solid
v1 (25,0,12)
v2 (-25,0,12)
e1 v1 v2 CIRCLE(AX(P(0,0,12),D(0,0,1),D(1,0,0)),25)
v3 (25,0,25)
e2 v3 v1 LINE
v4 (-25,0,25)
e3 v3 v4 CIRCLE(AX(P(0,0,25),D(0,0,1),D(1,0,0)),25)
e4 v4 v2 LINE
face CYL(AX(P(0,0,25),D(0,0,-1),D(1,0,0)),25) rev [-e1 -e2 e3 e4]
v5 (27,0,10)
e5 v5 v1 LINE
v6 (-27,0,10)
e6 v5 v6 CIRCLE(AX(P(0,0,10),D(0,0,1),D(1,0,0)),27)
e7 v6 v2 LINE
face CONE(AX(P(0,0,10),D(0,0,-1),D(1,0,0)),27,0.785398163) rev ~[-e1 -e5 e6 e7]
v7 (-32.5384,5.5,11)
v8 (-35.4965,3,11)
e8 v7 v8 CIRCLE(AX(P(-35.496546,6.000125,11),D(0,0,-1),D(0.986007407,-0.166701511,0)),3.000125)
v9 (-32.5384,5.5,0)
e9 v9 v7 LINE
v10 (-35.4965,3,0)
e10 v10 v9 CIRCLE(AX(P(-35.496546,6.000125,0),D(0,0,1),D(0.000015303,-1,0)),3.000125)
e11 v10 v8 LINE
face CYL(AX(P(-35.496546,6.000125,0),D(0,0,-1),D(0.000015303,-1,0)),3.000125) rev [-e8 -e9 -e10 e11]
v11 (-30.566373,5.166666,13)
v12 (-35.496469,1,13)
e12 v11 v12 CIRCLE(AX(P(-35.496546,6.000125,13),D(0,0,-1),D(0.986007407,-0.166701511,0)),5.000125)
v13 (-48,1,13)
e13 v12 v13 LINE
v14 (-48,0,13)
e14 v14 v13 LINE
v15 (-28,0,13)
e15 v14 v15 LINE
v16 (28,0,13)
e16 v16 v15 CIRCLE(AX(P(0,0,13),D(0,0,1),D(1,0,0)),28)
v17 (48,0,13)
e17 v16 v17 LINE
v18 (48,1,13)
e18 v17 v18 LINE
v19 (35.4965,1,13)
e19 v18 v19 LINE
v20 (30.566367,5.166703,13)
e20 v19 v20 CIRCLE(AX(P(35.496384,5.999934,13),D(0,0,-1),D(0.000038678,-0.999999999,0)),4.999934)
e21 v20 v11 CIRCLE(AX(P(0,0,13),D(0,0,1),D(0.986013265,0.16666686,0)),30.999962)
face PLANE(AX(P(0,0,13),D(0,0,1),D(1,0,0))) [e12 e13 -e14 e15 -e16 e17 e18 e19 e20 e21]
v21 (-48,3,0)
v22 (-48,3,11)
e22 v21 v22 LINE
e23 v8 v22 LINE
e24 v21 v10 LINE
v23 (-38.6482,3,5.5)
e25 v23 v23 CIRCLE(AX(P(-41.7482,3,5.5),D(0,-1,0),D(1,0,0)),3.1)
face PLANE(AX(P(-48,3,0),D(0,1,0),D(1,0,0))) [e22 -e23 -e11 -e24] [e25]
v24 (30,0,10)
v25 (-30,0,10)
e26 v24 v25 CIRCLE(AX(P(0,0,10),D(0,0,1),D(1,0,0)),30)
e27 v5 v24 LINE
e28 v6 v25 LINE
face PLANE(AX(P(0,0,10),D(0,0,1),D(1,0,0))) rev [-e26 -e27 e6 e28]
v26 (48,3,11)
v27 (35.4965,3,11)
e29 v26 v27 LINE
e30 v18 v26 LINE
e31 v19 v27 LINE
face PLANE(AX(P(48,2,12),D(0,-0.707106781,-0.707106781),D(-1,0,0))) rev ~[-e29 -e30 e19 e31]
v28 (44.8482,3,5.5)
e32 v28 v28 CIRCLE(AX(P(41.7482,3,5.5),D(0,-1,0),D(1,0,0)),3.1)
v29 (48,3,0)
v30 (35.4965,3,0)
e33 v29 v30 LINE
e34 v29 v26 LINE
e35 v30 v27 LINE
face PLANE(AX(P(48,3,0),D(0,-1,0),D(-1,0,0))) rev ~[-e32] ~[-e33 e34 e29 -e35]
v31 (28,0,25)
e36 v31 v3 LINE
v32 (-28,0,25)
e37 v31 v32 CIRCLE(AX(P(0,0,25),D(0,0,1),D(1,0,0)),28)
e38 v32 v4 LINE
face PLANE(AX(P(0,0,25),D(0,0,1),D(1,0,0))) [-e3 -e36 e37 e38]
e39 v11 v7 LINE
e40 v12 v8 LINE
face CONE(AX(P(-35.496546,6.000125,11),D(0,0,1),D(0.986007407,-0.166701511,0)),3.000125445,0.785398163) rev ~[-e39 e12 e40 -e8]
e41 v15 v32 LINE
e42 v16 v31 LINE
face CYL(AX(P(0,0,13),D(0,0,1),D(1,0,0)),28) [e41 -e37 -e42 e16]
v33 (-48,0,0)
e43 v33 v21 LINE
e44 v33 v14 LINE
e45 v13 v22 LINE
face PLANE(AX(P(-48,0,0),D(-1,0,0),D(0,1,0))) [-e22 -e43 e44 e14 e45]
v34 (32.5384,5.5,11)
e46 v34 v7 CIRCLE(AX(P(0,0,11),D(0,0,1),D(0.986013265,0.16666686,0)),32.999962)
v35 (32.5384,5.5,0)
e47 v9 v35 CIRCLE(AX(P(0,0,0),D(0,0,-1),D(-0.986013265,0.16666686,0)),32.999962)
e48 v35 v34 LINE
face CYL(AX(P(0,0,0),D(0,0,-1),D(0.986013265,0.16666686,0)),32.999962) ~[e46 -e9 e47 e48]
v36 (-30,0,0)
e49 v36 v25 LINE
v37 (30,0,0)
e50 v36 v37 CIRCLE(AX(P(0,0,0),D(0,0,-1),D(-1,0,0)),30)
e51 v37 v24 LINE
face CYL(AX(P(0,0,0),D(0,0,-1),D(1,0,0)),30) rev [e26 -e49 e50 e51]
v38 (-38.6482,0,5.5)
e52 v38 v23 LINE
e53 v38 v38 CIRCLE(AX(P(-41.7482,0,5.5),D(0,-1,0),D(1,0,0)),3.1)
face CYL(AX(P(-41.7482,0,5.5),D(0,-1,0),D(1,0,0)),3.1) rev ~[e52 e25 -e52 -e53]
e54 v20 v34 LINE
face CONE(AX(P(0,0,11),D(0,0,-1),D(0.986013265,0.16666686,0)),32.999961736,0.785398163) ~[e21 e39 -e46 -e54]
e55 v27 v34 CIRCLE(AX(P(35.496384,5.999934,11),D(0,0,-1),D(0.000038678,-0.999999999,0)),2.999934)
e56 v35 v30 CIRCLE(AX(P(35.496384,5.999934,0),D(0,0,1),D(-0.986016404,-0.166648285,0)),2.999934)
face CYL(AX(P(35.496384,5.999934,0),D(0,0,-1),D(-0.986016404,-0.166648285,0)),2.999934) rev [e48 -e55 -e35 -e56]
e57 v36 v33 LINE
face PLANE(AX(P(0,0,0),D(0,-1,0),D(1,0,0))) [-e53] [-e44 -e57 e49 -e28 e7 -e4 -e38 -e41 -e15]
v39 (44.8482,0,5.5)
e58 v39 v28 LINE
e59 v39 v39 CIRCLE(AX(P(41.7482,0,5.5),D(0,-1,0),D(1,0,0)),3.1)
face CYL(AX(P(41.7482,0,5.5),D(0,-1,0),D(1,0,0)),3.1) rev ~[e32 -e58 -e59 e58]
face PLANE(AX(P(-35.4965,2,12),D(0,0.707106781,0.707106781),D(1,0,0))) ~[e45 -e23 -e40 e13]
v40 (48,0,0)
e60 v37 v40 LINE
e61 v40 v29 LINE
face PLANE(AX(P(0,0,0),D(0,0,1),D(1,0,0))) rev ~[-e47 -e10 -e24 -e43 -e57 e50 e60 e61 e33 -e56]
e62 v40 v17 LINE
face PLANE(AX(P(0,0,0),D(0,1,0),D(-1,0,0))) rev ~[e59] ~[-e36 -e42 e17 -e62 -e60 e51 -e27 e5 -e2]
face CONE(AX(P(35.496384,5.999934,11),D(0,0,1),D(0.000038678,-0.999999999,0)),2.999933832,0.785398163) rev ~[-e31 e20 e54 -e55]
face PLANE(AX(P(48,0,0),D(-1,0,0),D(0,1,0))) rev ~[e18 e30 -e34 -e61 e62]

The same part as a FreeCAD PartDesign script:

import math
import FreeCAD as App
import Part
import Sketcher
from FreeCAD import Vector


def edges_at(feature, points):
    """Names of the edges that pass closest to the given points."""
    edges = feature.Shape.Edges
    near = lambda p: min(range(len(edges)), key=lambda i: edges[i].distToShape(Part.Vertex(*p))[0])
    return sorted({f"Edge{near(p) + 1}" for p in points})


def add_polygon(sketch, points):
    """Adds a closed chain of lines whose ends are joined by coincident constraints."""
    first, n = sketch.GeometryCount, len(points)
    for a, b in zip(points, points[1:] + points[:1]):
        sketch.addGeometry(Part.LineSegment(App.Vector(*a, 0), App.Vector(*b, 0)), False)
    for i in range(n):
        sketch.addConstraint(Sketcher.Constraint("Coincident", first + i, 2, first + (i + 1) % n, 1))

doc = App.newDocument("Part")
params = doc.addObject("Spreadsheet::Sheet", "Params")
for row, (alias, value) in enumerate([
    ("sketch1_radius", "3 mm"),
    ("sketch1_radius2", "30 mm"),
    ("sketch1_height", "3 mm"),
    ("sketch1_radius3", "33 mm"),
    ("sketch1_width", "18 mm"),
    ("pad1_length", "13 mm"),
    ("sketch2_width", "2 mm"),
    ("sketch2_width2", "3 mm"),
    ("sketch2_height", "12 mm"),
    ("revolution_angle", "180 deg"),
    ("chamfer_size", "2 mm"),
    ("sketch3_diameter", "6.2 mm"),
], start=1):
    params.set(f"A{row}", alias)
    params.set(f"B{row}", "=" + value)
    params.setAlias(f"B{row}", alias)

body = doc.addObject("PartDesign::Body", "Body")

sketch1 = body.newObject("Sketcher::SketchObject", "Sketch")
sketch1.AttachmentSupport = (doc.getObject("XY_Plane"), [""])
sketch1.MapMode = "FlatFace"
sketch1.addGeometry([
    Part.LineSegment(Vector(30, 0, 0), Vector(48, 0, 0)),
    Part.LineSegment(Vector(48, 0, 0), Vector(48, 3, 0)),
    Part.LineSegment(Vector(48, 3, 0), Vector(35.5, 3, 0)),
    Part.ArcOfCircle(Part.Circle(Vector(35.5, 6, 0), Vector(0, 0, 1), 3), math.radians(-170), math.radians(-90)),
    Part.ArcOfCircle(Part.Circle(Vector(0, 0, 0), Vector(0, 0, 1), 33), math.radians(10), math.radians(170)),
    Part.ArcOfCircle(Part.Circle(Vector(-35.5, 6, 0), Vector(0, 0, 1), 3), math.radians(-90), math.radians(-10)),
    Part.LineSegment(Vector(-35.5, 3, 0), Vector(-48, 3, 0)),
    Part.LineSegment(Vector(-48, 3, 0), Vector(-48, 0, 0)),
    Part.LineSegment(Vector(-48, 0, 0), Vector(-30, 0, 0)),
    Part.ArcOfCircle(Part.Circle(Vector(0, 0, 0), Vector(0, 0, 1), 30), math.radians(0), math.radians(180)),
], False)
sketch1.addConstraint([
    Sketcher.Constraint("Coincident", 0, 2, 1, 1),
    Sketcher.Constraint("Coincident", 1, 2, 2, 1),
    Sketcher.Constraint("Tangent", 2, 2, 3, 2),
    Sketcher.Constraint("Tangent", 3, 1, 4, 1),
    Sketcher.Constraint("Tangent", 4, 2, 5, 2),
    Sketcher.Constraint("Tangent", 5, 1, 6, 1),
    Sketcher.Constraint("Coincident", 6, 2, 7, 1),
    Sketcher.Constraint("Coincident", 7, 2, 8, 1),
    Sketcher.Constraint("Coincident", 8, 2, 9, 2),
    Sketcher.Constraint("Coincident", 9, 1, 0, 1),
    Sketcher.Constraint("Horizontal", 0),
    Sketcher.Constraint("Vertical", 1),
    Sketcher.Constraint("Horizontal", 2),
    Sketcher.Constraint("Horizontal", 6),
    Sketcher.Constraint("Vertical", 7),
    Sketcher.Constraint("Horizontal", 8),
    Sketcher.Constraint("Coincident", 4, 3, -1, 1),
    Sketcher.Constraint("Coincident", 9, 3, -1, 1),
    Sketcher.Constraint("Equal", 3, 5),
    Sketcher.Constraint("Symmetric", 0, 2, 7, 2, -1, 1),
    Sketcher.Constraint("PointOnObject", 0, 2, -1),
    Sketcher.Constraint("Horizontal", 3, 3, 5, 3),
    Sketcher.Constraint("Radius", 3, 3.0),
    Sketcher.Constraint("Radius", 9, 30.0),
    Sketcher.Constraint("DistanceY", 1, 1, 1, 2, 3.0),
    Sketcher.Constraint("Radius", 4, 33.0),
    Sketcher.Constraint("DistanceX", 0, 1, 0, 2, 18.0),
])
sketch1.setExpression("Constraints[22]", "Params.sketch1_radius")
sketch1.setExpression("Constraints[23]", "Params.sketch1_radius2")
sketch1.setExpression("Constraints[24]", "Params.sketch1_height")
sketch1.setExpression("Constraints[25]", "Params.sketch1_radius3")
sketch1.setExpression("Constraints[26]", "Params.sketch1_width")
pad1 = body.newObject("PartDesign::Pad", "Pad")
pad1.Profile = sketch1
pad1.setExpression("Length", "Params.pad1_length")

sketch2 = body.newObject("Sketcher::SketchObject", "Sketch001")
sketch2.AttachmentSupport = (doc.getObject("XZ_Plane"), [""])
sketch2.MapMode = "FlatFace"
add_polygon(sketch2, [(28, 13), (30, 13), (30, 10), (27, 10), (25, 12), (25, 25), (28, 25)])
sketch2.addConstraint([
    Sketcher.Constraint("Horizontal", 0),
    Sketcher.Constraint("Vertical", 1),
    Sketcher.Constraint("Horizontal", 2),
    Sketcher.Constraint("Vertical", 4),
    Sketcher.Constraint("Horizontal", 5),
    Sketcher.Constraint("Vertical", 6),
    Sketcher.Constraint("Equal", 2, 5),
    Sketcher.Constraint("Equal", 5, 1),
    Sketcher.Constraint("DistanceX", 0, 1, 0, 2, 2.0),
    Sketcher.Constraint("DistanceX", 2, 2, 2, 1, 3.0),
    Sketcher.Constraint("DistanceY", 6, 2, 6, 1, 12.0),
    Sketcher.Constraint("DistanceY", -1, 1, 3, 2, 12.0),
    Sketcher.Constraint("DistanceY", 2, 2, 3, 2, 2.0),
    Sketcher.Constraint("DistanceX", -1, 1, 0, 2, 30.0),
])
sketch2.setExpression("Constraints[15]", "Params.sketch2_width")
sketch2.setExpression("Constraints[16]", "Params.sketch2_width2")
sketch2.setExpression("Constraints[17]", "Params.sketch2_height")
revolution = body.newObject("PartDesign::Revolution", "Revolution")
revolution.Profile = sketch2
revolution.ReferenceAxis = (sketch2, ["V_Axis"])
revolution.setExpression("Angle", "Params.revolution_angle")
doc.recompute()

chamfer = body.newObject("PartDesign::Chamfer", "Chamfer")
chamfer.Base = (revolution, edges_at(revolution, [
    (0, 33, 13),
    (-33.56, 3.709, 13),
    (-41.748, 3, 13),
    (33.56, 3.709, 13),
    (41.748, 3, 13),
]))
chamfer.setExpression("Size", "Params.chamfer_size")

sketch3 = body.newObject("Sketcher::SketchObject", "Sketch002")
sketch3.AttachmentSupport = (doc.getObject("XZ_Plane"), [""])
sketch3.MapMode = "FlatFace"
sketch3.addGeometry([
    Part.Circle(Vector(-41.7, 5.5, 0), Vector(0, 0, 1), 3.1),
    Part.Circle(Vector(41.7, 5.5, 0), Vector(0, 0, 1), 3.1),
], False)
sketch3.addConstraint([
    Sketcher.Constraint("Equal", 0, 1),
    Sketcher.Constraint("Symmetric", 0, 3, 1, 3, -2),
    Sketcher.Constraint("Diameter", 0, 6.2),
    Sketcher.Constraint("DistanceY", -1, 1, 0, 3, 5.5),
    Sketcher.Constraint("DistanceX", 0, 3, -1, 1, 41.7482),
])
sketch3.setExpression("Constraints[2]", "Params.sketch3_diameter")
pocket1 = body.newObject("PartDesign::Pocket", "Pocket")
pocket1.Profile = sketch3
pocket1.Type = "ThroughAll"

doc.recompute()
